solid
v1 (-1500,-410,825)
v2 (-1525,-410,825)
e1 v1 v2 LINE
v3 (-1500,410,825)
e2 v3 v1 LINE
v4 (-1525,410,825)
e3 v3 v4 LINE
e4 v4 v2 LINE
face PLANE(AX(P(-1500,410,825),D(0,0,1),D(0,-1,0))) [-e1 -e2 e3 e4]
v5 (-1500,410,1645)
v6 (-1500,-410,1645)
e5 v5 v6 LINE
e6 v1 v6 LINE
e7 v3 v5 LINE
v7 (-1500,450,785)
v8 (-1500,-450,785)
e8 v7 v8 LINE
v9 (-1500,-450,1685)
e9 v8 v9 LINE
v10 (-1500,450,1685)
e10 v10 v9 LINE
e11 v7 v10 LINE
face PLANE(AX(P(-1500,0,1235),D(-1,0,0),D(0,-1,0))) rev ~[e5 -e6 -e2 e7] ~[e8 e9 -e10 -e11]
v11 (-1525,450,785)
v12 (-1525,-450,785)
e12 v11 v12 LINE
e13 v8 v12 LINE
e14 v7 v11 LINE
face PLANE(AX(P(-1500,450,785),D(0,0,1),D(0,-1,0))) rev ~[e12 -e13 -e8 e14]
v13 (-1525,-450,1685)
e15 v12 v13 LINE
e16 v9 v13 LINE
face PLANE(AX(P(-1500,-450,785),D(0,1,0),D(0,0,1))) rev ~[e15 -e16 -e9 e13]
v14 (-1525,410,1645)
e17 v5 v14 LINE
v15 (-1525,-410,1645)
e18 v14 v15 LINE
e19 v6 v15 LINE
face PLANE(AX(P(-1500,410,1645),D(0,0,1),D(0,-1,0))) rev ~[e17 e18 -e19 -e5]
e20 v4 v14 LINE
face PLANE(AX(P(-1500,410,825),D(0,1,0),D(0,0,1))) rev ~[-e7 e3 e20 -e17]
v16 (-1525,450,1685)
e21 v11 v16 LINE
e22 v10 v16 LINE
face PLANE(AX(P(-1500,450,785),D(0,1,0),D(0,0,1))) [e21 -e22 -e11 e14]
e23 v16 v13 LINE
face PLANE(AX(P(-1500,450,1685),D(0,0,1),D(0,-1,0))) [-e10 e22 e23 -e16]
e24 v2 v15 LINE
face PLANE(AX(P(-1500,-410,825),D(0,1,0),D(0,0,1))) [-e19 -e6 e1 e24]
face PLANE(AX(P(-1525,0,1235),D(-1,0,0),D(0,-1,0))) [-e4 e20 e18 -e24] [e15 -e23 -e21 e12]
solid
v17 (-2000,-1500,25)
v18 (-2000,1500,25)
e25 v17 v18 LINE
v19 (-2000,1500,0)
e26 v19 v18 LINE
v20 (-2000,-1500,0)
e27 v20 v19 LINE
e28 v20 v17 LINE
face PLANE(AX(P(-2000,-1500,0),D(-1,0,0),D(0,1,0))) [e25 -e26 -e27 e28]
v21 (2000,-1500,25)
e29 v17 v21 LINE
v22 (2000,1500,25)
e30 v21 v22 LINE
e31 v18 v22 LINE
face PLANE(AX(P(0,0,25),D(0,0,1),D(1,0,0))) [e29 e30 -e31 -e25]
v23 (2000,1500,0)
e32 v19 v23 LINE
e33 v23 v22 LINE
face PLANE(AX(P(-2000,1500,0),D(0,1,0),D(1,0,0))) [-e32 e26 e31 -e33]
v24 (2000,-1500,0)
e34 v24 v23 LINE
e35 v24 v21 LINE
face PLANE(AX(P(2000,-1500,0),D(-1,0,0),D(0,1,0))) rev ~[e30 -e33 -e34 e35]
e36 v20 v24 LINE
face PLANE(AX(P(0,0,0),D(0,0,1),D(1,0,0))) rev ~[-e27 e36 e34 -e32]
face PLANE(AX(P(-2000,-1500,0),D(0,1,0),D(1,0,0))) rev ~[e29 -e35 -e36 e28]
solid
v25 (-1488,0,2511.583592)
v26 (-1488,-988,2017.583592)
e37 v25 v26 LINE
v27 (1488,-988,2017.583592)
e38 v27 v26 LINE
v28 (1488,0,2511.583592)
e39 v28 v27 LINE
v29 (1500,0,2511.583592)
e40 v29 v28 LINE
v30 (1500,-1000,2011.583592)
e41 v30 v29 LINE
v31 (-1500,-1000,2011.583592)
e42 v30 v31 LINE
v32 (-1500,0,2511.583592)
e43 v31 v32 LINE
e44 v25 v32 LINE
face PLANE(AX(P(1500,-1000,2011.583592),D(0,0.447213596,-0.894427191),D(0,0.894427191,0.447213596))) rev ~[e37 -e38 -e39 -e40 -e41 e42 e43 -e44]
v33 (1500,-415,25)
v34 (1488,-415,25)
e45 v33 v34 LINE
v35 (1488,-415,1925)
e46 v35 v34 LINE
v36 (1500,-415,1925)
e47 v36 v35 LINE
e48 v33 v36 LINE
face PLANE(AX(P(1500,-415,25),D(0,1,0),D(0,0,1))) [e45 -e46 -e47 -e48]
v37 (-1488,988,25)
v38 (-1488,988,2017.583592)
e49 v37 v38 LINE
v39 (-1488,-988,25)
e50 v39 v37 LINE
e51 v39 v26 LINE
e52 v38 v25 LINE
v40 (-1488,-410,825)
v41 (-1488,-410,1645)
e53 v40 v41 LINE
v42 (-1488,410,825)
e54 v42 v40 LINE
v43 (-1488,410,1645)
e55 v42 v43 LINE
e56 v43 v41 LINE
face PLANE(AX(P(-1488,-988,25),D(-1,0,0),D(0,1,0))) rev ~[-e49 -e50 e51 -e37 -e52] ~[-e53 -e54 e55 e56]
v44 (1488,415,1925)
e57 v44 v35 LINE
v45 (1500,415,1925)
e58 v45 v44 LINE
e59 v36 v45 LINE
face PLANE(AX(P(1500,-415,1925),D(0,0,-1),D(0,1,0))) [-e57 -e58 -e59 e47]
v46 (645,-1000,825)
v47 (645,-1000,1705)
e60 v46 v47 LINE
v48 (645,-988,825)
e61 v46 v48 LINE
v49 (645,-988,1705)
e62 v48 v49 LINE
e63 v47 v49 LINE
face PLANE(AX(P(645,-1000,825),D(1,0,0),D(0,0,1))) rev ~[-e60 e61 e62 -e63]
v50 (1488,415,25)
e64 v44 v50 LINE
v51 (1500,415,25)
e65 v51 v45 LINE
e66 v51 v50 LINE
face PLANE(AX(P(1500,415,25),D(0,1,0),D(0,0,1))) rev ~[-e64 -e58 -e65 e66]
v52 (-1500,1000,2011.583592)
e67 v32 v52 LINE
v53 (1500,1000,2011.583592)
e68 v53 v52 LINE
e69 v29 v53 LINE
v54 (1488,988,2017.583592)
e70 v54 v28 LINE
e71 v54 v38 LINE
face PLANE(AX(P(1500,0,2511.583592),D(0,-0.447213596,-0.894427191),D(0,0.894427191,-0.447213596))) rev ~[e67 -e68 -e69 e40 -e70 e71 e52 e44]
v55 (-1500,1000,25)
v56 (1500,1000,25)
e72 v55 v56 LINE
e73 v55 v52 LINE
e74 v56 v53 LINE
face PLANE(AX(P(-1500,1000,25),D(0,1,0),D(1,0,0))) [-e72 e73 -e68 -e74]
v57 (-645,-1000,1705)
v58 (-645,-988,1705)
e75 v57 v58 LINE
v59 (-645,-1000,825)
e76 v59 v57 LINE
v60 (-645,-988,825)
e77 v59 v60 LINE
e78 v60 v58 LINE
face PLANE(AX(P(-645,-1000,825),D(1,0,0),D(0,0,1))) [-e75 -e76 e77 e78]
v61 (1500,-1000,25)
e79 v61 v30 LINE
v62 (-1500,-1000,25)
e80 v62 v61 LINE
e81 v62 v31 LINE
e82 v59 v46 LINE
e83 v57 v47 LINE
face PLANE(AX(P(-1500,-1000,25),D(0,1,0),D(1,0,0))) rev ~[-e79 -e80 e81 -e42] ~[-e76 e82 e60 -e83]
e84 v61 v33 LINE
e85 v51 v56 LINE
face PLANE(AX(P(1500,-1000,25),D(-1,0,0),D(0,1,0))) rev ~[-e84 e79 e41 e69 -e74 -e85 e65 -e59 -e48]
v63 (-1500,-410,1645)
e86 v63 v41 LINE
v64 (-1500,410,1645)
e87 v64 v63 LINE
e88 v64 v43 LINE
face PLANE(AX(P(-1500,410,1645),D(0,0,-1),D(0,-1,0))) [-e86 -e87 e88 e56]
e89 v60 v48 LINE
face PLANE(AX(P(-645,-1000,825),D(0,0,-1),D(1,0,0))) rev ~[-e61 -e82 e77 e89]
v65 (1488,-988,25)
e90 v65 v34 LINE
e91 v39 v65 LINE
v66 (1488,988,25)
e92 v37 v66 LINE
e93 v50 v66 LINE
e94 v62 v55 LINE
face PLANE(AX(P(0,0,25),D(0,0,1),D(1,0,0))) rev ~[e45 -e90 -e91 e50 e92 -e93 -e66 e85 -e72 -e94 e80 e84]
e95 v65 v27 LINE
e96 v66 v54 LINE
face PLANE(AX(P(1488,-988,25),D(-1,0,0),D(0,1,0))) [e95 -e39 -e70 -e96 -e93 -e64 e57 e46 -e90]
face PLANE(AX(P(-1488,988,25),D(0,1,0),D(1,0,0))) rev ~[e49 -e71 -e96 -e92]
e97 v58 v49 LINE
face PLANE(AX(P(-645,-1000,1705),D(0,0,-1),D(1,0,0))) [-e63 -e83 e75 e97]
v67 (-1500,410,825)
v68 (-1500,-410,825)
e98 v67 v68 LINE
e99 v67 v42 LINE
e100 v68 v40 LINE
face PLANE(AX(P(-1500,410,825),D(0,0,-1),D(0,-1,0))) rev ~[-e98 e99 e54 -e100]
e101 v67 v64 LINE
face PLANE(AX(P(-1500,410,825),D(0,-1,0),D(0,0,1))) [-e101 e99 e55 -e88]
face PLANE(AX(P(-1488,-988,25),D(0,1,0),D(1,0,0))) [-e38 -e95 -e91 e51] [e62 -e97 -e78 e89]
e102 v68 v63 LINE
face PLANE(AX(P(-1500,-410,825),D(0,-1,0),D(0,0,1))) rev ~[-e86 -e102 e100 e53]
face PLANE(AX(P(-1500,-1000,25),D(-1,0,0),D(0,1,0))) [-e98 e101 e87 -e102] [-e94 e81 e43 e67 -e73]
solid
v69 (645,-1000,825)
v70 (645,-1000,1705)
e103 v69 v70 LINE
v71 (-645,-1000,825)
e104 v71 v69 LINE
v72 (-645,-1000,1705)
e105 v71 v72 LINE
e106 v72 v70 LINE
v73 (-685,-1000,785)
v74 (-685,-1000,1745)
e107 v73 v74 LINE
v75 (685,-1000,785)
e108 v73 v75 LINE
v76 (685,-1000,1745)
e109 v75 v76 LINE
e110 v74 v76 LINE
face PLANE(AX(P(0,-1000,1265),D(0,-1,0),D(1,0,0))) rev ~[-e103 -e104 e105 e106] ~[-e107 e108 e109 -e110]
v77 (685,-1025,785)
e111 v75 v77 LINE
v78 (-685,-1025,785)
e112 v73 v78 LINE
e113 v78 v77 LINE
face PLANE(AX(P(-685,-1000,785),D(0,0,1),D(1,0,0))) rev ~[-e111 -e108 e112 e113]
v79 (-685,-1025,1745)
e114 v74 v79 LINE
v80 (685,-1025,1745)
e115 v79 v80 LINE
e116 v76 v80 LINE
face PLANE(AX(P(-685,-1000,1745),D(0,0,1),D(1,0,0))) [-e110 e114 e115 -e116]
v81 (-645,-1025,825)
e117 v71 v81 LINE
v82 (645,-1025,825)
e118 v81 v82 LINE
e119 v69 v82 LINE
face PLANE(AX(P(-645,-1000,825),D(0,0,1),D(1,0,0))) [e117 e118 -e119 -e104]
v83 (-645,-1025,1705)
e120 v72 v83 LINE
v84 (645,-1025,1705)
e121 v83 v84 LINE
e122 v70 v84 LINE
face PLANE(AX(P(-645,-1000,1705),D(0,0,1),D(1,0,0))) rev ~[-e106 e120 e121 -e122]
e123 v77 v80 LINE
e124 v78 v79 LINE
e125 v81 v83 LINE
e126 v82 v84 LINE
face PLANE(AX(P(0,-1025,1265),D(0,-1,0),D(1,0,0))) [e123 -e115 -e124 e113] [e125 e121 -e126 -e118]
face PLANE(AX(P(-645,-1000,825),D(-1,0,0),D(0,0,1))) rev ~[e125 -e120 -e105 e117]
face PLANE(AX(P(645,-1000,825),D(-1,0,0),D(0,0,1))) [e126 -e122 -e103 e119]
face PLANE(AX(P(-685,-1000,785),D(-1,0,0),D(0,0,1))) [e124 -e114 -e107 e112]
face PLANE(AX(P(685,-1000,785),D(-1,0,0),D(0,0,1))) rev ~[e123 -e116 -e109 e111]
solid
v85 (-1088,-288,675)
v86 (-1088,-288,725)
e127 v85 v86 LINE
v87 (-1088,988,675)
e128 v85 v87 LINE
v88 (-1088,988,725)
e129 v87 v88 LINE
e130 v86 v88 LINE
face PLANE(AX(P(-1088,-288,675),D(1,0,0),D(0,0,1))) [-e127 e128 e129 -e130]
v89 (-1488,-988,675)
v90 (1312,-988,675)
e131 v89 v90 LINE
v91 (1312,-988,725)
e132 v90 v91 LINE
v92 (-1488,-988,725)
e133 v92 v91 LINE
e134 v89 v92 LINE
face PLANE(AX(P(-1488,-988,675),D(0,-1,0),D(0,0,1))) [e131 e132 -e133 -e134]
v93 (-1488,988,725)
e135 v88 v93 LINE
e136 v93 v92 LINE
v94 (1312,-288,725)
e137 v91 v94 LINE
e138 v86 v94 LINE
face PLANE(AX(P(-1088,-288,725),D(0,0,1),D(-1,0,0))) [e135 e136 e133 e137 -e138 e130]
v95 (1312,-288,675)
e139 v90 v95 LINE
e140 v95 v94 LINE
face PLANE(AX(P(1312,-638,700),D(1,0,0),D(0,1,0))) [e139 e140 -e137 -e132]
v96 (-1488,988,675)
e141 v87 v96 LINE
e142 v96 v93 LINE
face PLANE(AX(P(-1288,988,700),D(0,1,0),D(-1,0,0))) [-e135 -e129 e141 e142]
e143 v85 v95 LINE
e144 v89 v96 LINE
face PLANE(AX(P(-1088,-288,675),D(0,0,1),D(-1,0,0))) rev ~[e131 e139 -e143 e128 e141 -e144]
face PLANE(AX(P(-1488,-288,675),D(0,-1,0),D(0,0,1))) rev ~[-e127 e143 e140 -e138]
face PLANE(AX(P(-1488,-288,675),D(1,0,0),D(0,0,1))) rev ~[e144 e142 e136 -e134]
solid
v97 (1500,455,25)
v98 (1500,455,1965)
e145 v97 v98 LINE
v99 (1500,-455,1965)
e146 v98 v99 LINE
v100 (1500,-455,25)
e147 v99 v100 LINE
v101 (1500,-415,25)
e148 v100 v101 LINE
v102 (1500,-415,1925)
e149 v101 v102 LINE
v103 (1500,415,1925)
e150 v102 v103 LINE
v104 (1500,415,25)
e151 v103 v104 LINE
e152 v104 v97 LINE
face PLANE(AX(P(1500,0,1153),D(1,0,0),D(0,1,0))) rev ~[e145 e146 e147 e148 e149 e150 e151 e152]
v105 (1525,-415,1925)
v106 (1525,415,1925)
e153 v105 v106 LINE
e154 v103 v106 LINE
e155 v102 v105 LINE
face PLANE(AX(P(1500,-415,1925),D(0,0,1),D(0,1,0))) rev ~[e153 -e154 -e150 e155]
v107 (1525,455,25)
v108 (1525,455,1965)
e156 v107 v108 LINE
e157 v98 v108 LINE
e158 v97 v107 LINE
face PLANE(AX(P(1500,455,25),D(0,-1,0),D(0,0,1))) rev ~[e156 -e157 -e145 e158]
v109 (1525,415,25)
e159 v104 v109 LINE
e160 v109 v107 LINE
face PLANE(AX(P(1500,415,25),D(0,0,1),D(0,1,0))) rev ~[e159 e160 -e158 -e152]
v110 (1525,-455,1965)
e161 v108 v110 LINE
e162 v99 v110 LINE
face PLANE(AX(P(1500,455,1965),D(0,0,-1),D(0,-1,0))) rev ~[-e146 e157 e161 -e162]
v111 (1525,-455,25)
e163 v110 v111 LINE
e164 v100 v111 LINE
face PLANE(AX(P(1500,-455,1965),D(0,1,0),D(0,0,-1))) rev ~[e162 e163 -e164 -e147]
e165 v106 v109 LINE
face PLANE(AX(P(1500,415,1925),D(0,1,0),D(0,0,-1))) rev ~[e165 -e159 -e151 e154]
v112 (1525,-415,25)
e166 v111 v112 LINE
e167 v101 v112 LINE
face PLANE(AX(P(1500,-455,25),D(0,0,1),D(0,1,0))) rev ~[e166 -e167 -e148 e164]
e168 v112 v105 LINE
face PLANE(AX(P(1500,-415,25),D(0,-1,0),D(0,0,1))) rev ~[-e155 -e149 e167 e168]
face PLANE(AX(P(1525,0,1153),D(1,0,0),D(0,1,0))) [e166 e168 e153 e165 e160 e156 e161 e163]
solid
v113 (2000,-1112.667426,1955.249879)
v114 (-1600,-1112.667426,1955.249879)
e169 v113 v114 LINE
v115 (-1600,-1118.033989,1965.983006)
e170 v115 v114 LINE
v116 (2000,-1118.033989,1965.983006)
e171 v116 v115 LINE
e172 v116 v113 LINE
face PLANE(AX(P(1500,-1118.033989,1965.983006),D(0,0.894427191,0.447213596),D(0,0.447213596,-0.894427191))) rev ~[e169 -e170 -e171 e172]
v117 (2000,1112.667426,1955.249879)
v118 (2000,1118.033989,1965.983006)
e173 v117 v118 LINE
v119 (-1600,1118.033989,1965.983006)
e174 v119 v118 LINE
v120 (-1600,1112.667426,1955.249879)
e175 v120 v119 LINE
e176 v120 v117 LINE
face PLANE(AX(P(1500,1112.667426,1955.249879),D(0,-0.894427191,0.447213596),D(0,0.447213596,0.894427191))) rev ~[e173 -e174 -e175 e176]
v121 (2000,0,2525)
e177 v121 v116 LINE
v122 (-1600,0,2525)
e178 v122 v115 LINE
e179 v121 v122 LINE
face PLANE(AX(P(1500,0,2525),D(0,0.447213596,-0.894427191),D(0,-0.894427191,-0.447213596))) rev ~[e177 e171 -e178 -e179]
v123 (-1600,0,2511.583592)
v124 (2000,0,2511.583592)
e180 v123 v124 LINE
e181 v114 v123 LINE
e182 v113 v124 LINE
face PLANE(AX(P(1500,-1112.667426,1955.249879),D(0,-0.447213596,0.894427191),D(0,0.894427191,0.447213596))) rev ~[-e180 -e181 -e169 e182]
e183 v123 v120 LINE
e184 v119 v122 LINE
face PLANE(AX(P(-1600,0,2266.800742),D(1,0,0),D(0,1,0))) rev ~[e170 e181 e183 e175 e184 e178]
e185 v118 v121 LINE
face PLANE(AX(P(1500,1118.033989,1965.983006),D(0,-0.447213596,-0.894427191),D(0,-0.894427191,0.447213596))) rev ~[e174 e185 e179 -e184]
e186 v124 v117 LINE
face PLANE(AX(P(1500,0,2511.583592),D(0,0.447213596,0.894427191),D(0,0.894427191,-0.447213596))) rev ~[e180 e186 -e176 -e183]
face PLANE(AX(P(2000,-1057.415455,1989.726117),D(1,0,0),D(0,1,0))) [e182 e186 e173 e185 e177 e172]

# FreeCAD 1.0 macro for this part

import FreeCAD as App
import Part
import Sketcher
from FreeCAD import Vector

doc = App.newDocument("Part")
body = doc.addObject("PartDesign::Body", "Body")

# Sketch on XY plane
sketch1 = body.newObject("Sketcher::SketchObject", "Sketch")
sketch1.AttachmentSupport = (doc.getObject("XY_Plane"), [""])
sketch1.MapMode = "FlatFace"
sketch1.addGeometry(Part.LineSegment(Vector(-2000, 1500, 0), Vector(-2000, -1500, 0)), False)
sketch1.addGeometry(Part.LineSegment(Vector(-2000, -1500, 0), Vector(2000, -1500, 0)), False)
sketch1.addGeometry(Part.LineSegment(Vector(2000, -1500, 0), Vector(2000, 1500, 0)), False)
sketch1.addGeometry(Part.LineSegment(Vector(2000, 1500, 0), Vector(-2000, 1500, 0)), False)
sketch1.addConstraint(Sketcher.Constraint("Coincident", 0, 2, 1, 1))
sketch1.addConstraint(Sketcher.Constraint("Coincident", 1, 2, 2, 1))
sketch1.addConstraint(Sketcher.Constraint("Coincident", 2, 2, 3, 1))
sketch1.addConstraint(Sketcher.Constraint("Coincident", 3, 2, 0, 1))
sketch1.addConstraint(Sketcher.Constraint("Vertical", 0))
sketch1.addConstraint(Sketcher.Constraint("Horizontal", 1))
sketch1.addConstraint(Sketcher.Constraint("Vertical", 2))
sketch1.addConstraint(Sketcher.Constraint("Horizontal", 3))
sketch1.addConstraint(Sketcher.Constraint("Symmetric", 0, 2, 2, 2, -1, 1))
sketch1.addConstraint(Sketcher.Constraint("DistanceX", 1, 1, 1, 2, 4000.0))
sketch1.addConstraint(Sketcher.Constraint("DistanceY", 0, 2, 0, 1, 3000.0))
pad1 = body.newObject("PartDesign::Pad", "Pad")
pad1.Profile = sketch1
pad1.Length = 25
body2 = doc.addObject("PartDesign::Body", "Body001")

# Sketch on XY plane
sketch2 = body2.newObject("Sketcher::SketchObject", "Sketch001")
sketch2.AttachmentSupport = (doc.getObject("XY_Plane001"), [""])
sketch2.MapMode = "FlatFace"
sketch2.AttachmentOffset = App.Placement(Vector(0, 0, 25), App.Rotation())
sketch2.addGeometry(Part.LineSegment(Vector(-1500, 1000, 0), Vector(-1500, -1000, 0)), False)
sketch2.addGeometry(Part.LineSegment(Vector(-1500, -1000, 0), Vector(1500, -1000, 0)), False)
sketch2.addGeometry(Part.LineSegment(Vector(1500, -1000, 0), Vector(1500, 1000, 0)), False)
sketch2.addGeometry(Part.LineSegment(Vector(1500, 1000, 0), Vector(-1500, 1000, 0)), False)
sketch2.addGeometry(Part.LineSegment(Vector(1488, -988, 0), Vector(-1488, -988, 0)), False)
sketch2.addGeometry(Part.LineSegment(Vector(-1488, -988, 0), Vector(-1488, 988, 0)), False)
sketch2.addGeometry(Part.LineSegment(Vector(-1488, 988, 0), Vector(1488, 988, 0)), False)
sketch2.addGeometry(Part.LineSegment(Vector(1488, 988, 0), Vector(1488, -988, 0)), False)
sketch2.addConstraint(Sketcher.Constraint("Coincident", 0, 2, 1, 1))
sketch2.addConstraint(Sketcher.Constraint("Coincident", 1, 2, 2, 1))
sketch2.addConstraint(Sketcher.Constraint("Coincident", 2, 2, 3, 1))
sketch2.addConstraint(Sketcher.Constraint("Coincident", 3, 2, 0, 1))
sketch2.addConstraint(Sketcher.Constraint("Coincident", 4, 2, 5, 1))
sketch2.addConstraint(Sketcher.Constraint("Coincident", 5, 2, 6, 1))
sketch2.addConstraint(Sketcher.Constraint("Coincident", 6, 2, 7, 1))
sketch2.addConstraint(Sketcher.Constraint("Coincident", 7, 2, 4, 1))
sketch2.addConstraint(Sketcher.Constraint("Vertical", 0))
sketch2.addConstraint(Sketcher.Constraint("Horizontal", 1))
sketch2.addConstraint(Sketcher.Constraint("Vertical", 2))
sketch2.addConstraint(Sketcher.Constraint("Horizontal", 3))
sketch2.addConstraint(Sketcher.Constraint("Horizontal", 4))
sketch2.addConstraint(Sketcher.Constraint("Vertical", 5))
sketch2.addConstraint(Sketcher.Constraint("Horizontal", 6))
sketch2.addConstraint(Sketcher.Constraint("Vertical", 7))
sketch2.addConstraint(Sketcher.Constraint("Symmetric", 0, 2, 2, 2, -1, 1))
sketch2.addConstraint(Sketcher.Constraint("Symmetric", 4, 2, 6, 2, -1, 1))
sketch2.addConstraint(Sketcher.Constraint("DistanceX", 1, 1, 1, 2, 3000.0))
sketch2.addConstraint(Sketcher.Constraint("DistanceX", 4, 2, 4, 1, 2976.0))
sketch2.addConstraint(Sketcher.Constraint("DistanceY", 0, 2, 0, 1, 2000.0))
sketch2.addConstraint(Sketcher.Constraint("DistanceY", 5, 1, 5, 2, 1976.0))
pad2 = body2.newObject("PartDesign::Pad", "Pad001")
pad2.Profile = sketch2
pad2.Length = 2500

# Sketch on YZ plane
sketch3 = body2.newObject("Sketcher::SketchObject", "Sketch002")
sketch3.AttachmentSupport = (doc.getObject("YZ_Plane001"), [""])
sketch3.MapMode = "FlatFace"
sketch3.AttachmentOffset = App.Placement(Vector(0, 0, -1500), App.Rotation())
sketch3.addGeometry(Part.LineSegment(Vector(410, 1645, 0), Vector(410, 825, 0)), False)
sketch3.addGeometry(Part.LineSegment(Vector(410, 825, 0), Vector(-410, 825, 0)), False)
sketch3.addGeometry(Part.LineSegment(Vector(-410, 825, 0), Vector(-410, 1645, 0)), False)
sketch3.addGeometry(Part.LineSegment(Vector(-410, 1645, 0), Vector(410, 1645, 0)), False)
sketch3.addConstraint(Sketcher.Constraint("Coincident", 0, 2, 1, 1))
sketch3.addConstraint(Sketcher.Constraint("Coincident", 1, 2, 2, 1))
sketch3.addConstraint(Sketcher.Constraint("Coincident", 2, 2, 3, 1))
sketch3.addConstraint(Sketcher.Constraint("Coincident", 3, 2, 0, 1))
sketch3.addConstraint(Sketcher.Constraint("Vertical", 0))
sketch3.addConstraint(Sketcher.Constraint("Horizontal", 1))
sketch3.addConstraint(Sketcher.Constraint("Vertical", 2))
sketch3.addConstraint(Sketcher.Constraint("Horizontal", 3))
sketch3.addConstraint(Sketcher.Constraint("Equal", 3, 0))
sketch3.addConstraint(Sketcher.Constraint("DistanceX", 1, 2, 1, 1, 820.0))
sketch3.addConstraint(Sketcher.Constraint("DistanceX", -1, 1, 0, 2, 410.0))
sketch3.addConstraint(Sketcher.Constraint("DistanceY", -1, 1, 0, 2, 825.0))
pocket1 = body2.newObject("PartDesign::Pocket", "Pocket")
pocket1.Profile = sketch3
pocket1.Length = 12
pocket1.Reversed = True

# Sketch on XZ plane
sketch4 = body2.newObject("Sketcher::SketchObject", "Sketch003")
sketch4.AttachmentSupport = (doc.getObject("XZ_Plane001"), [""])
sketch4.MapMode = "FlatFace"
sketch4.AttachmentOffset = App.Placement(Vector(0, 0, 1000), App.Rotation())
sketch4.addGeometry(Part.LineSegment(Vector(-645, 1705, 0), Vector(-645, 825, 0)), False)
sketch4.addGeometry(Part.LineSegment(Vector(-645, 825, 0), Vector(645, 825, 0)), False)
sketch4.addGeometry(Part.LineSegment(Vector(645, 825, 0), Vector(645, 1705, 0)), False)
sketch4.addGeometry(Part.LineSegment(Vector(645, 1705, 0), Vector(-645, 1705, 0)), False)
sketch4.addConstraint(Sketcher.Constraint("Coincident", 0, 2, 1, 1))
sketch4.addConstraint(Sketcher.Constraint("Coincident", 1, 2, 2, 1))
sketch4.addConstraint(Sketcher.Constraint("Coincident", 2, 2, 3, 1))
sketch4.addConstraint(Sketcher.Constraint("Coincident", 3, 2, 0, 1))
sketch4.addConstraint(Sketcher.Constraint("Vertical", 0))
sketch4.addConstraint(Sketcher.Constraint("Horizontal", 1))
sketch4.addConstraint(Sketcher.Constraint("Vertical", 2))
sketch4.addConstraint(Sketcher.Constraint("Horizontal", 3))
sketch4.addConstraint(Sketcher.Constraint("DistanceX", 1, 1, 1, 2, 1290.0))
sketch4.addConstraint(Sketcher.Constraint("DistanceY", 0, 2, 0, 1, 880.0))
sketch4.addConstraint(Sketcher.Constraint("DistanceX", 0, 2, -1, 1, 645.0))
sketch4.addConstraint(Sketcher.Constraint("DistanceY", -1, 1, 0, 2, 825.0))
pocket2 = body2.newObject("PartDesign::Pocket", "Pocket001")
pocket2.Profile = sketch4
pocket2.Length = 12

# Sketch on YZ plane
sketch5 = body2.newObject("Sketcher::SketchObject", "Sketch004")
sketch5.AttachmentSupport = (doc.getObject("YZ_Plane001"), [""])
sketch5.MapMode = "FlatFace"
sketch5.AttachmentOffset = App.Placement(Vector(0, 0, 1500), App.Rotation())
sketch5.addGeometry(Part.LineSegment(Vector(-415, 1925, 0), Vector(-415, 25, 0)), False)
sketch5.addGeometry(Part.LineSegment(Vector(-415, 25, 0), Vector(415, 25, 0)), False)
sketch5.addGeometry(Part.LineSegment(Vector(415, 25, 0), Vector(415, 1925, 0)), False)
sketch5.addGeometry(Part.LineSegment(Vector(415, 1925, 0), Vector(-415, 1925, 0)), False)
sketch5.addConstraint(Sketcher.Constraint("Coincident", 0, 2, 1, 1))
sketch5.addConstraint(Sketcher.Constraint("Coincident", 1, 2, 2, 1))
sketch5.addConstraint(Sketcher.Constraint("Coincident", 2, 2, 3, 1))
sketch5.addConstraint(Sketcher.Constraint("Coincident", 3, 2, 0, 1))
sketch5.addConstraint(Sketcher.Constraint("Vertical", 0))
sketch5.addConstraint(Sketcher.Constraint("Horizontal", 1))
sketch5.addConstraint(Sketcher.Constraint("Vertical", 2))
sketch5.addConstraint(Sketcher.Constraint("Horizontal", 3))
sketch5.addConstraint(Sketcher.Constraint("DistanceX", 1, 1, 1, 2, 830.0))
sketch5.addConstraint(Sketcher.Constraint("DistanceY", 0, 2, 0, 1, 1900.0))
sketch5.addConstraint(Sketcher.Constraint("DistanceX", 0, 2, -1, 1, 415.0))
sketch5.addConstraint(Sketcher.Constraint("DistanceY", -1, 1, 0, 2, 25.0))
pocket3 = body2.newObject("PartDesign::Pocket", "Pocket002")
pocket3.Profile = sketch5
pocket3.Length = 25

# Sketch on YZ plane
sketch6 = body2.newObject("Sketcher::SketchObject", "Sketch005")
sketch6.AttachmentSupport = (doc.getObject("YZ_Plane001"), [""])
sketch6.MapMode = "FlatFace"
sketch6.AttachmentOffset = App.Placement(Vector(0, 0, 1500), App.Rotation())
sketch6.addGeometry(Part.LineSegment(Vector(-1000, 2525, 0), Vector(-1000, 2011.583592, 0)), False)
sketch6.addGeometry(Part.LineSegment(Vector(-1000, 2011.583592, 0), Vector(0, 2511.583592, 0)), False)
sketch6.addGeometry(Part.LineSegment(Vector(0, 2511.583592, 0), Vector(1000, 2011.583592, 0)), False)
sketch6.addGeometry(Part.LineSegment(Vector(1000, 2011.583592, 0), Vector(1000, 2525, 0)), False)
sketch6.addGeometry(Part.LineSegment(Vector(1000, 2525, 0), Vector(-1000, 2525, 0)), False)
sketch6.addConstraint(Sketcher.Constraint("Coincident", 0, 2, 1, 1))
sketch6.addConstraint(Sketcher.Constraint("Coincident", 1, 2, 2, 1))
sketch6.addConstraint(Sketcher.Constraint("Coincident", 2, 2, 3, 1))
sketch6.addConstraint(Sketcher.Constraint("Coincident", 3, 2, 4, 1))
sketch6.addConstraint(Sketcher.Constraint("Coincident", 4, 2, 0, 1))
sketch6.addConstraint(Sketcher.Constraint("Vertical", 0))
sketch6.addConstraint(Sketcher.Constraint("Vertical", 3))
sketch6.addConstraint(Sketcher.Constraint("Horizontal", 4))
sketch6.addConstraint(Sketcher.Constraint("Symmetric", 0, 2, 2, 2, -2))
sketch6.addConstraint(Sketcher.Constraint("PointOnObject", 1, 2, -2))
sketch6.addConstraint(Sketcher.Constraint("DistanceX", 4, 2, 4, 1, 2000.0))
sketch6.addConstraint(Sketcher.Constraint("DistanceY", -1, 1, 3, 2, 2525.0))
sketch6.addConstraint(Sketcher.Constraint("DistanceY", 0, 2, 1, 2, 500.0))
sketch6.addConstraint(Sketcher.Constraint("DistanceY", 0, 2, 0, 1, 513.416408))
pocket4 = body2.newObject("PartDesign::Pocket", "Pocket003")
pocket4.Profile = sketch6
pocket4.Type = "ThroughAll"
body3 = doc.addObject("PartDesign::Body", "Body002")

# Sketch on YZ plane
sketch7 = body3.newObject("Sketcher::SketchObject", "Sketch006")
sketch7.AttachmentSupport = (doc.getObject("YZ_Plane002"), [""])
sketch7.MapMode = "FlatFace"
sketch7.AttachmentOffset = App.Placement(Vector(0, 0, -1500), App.Rotation())
sketch7.addGeometry(Part.LineSegment(Vector(450, 1685, 0), Vector(450, 785, 0)), False)
sketch7.addGeometry(Part.LineSegment(Vector(450, 785, 0), Vector(-450, 785, 0)), False)
sketch7.addGeometry(Part.LineSegment(Vector(-450, 785, 0), Vector(-450, 1685, 0)), False)
sketch7.addGeometry(Part.LineSegment(Vector(-450, 1685, 0), Vector(450, 1685, 0)), False)
sketch7.addGeometry(Part.LineSegment(Vector(-410, 825, 0), Vector(410, 825, 0)), False)
sketch7.addGeometry(Part.LineSegment(Vector(410, 825, 0), Vector(410, 1645, 0)), False)
sketch7.addGeometry(Part.LineSegment(Vector(410, 1645, 0), Vector(-410, 1645, 0)), False)
sketch7.addGeometry(Part.LineSegment(Vector(-410, 1645, 0), Vector(-410, 825, 0)), False)
sketch7.addConstraint(Sketcher.Constraint("Coincident", 0, 2, 1, 1))
sketch7.addConstraint(Sketcher.Constraint("Coincident", 1, 2, 2, 1))
sketch7.addConstraint(Sketcher.Constraint("Coincident", 2, 2, 3, 1))
sketch7.addConstraint(Sketcher.Constraint("Coincident", 3, 2, 0, 1))
sketch7.addConstraint(Sketcher.Constraint("Coincident", 4, 2, 5, 1))
sketch7.addConstraint(Sketcher.Constraint("Coincident", 5, 2, 6, 1))
sketch7.addConstraint(Sketcher.Constraint("Coincident", 6, 2, 7, 1))
sketch7.addConstraint(Sketcher.Constraint("Coincident", 7, 2, 4, 1))
sketch7.addConstraint(Sketcher.Constraint("Vertical", 0))
sketch7.addConstraint(Sketcher.Constraint("Horizontal", 1))
sketch7.addConstraint(Sketcher.Constraint("Vertical", 2))
sketch7.addConstraint(Sketcher.Constraint("Horizontal", 3))
sketch7.addConstraint(Sketcher.Constraint("Horizontal", 4))
sketch7.addConstraint(Sketcher.Constraint("Vertical", 5))
sketch7.addConstraint(Sketcher.Constraint("Horizontal", 6))
sketch7.addConstraint(Sketcher.Constraint("Vertical", 7))
sketch7.addConstraint(Sketcher.Constraint("Equal", 3, 0))
sketch7.addConstraint(Sketcher.Constraint("Equal", 6, 5))
sketch7.addConstraint(Sketcher.Constraint("DistanceX", 1, 2, 1, 1, 900.0))
sketch7.addConstraint(Sketcher.Constraint("DistanceX", 4, 1, 4, 2, 820.0))
sketch7.addConstraint(Sketcher.Constraint("DistanceX", -1, 1, 0, 2, 450.0))
sketch7.addConstraint(Sketcher.Constraint("DistanceY", -1, 1, 0, 2, 785.0))
sketch7.addConstraint(Sketcher.Constraint("DistanceX", -1, 1, 4, 2, 410.0))
sketch7.addConstraint(Sketcher.Constraint("DistanceY", -1, 1, 4, 2, 825.0))
pad3 = body3.newObject("PartDesign::Pad", "Pad002")
pad3.Profile = sketch7
pad3.Length = 25
pad3.Reversed = True
body4 = doc.addObject("PartDesign::Body", "Body003")

# Sketch on XZ plane
sketch8 = body4.newObject("Sketcher::SketchObject", "Sketch007")
sketch8.AttachmentSupport = (doc.getObject("XZ_Plane003"), [""])
sketch8.MapMode = "FlatFace"
sketch8.AttachmentOffset = App.Placement(Vector(0, 0, 1000), App.Rotation())
sketch8.addGeometry(Part.LineSegment(Vector(-685, 1745, 0), Vector(-685, 785, 0)), False)
sketch8.addGeometry(Part.LineSegment(Vector(-685, 785, 0), Vector(685, 785, 0)), False)
sketch8.addGeometry(Part.LineSegment(Vector(685, 785, 0), Vector(685, 1745, 0)), False)
sketch8.addGeometry(Part.LineSegment(Vector(685, 1745, 0), Vector(-685, 1745, 0)), False)
sketch8.addGeometry(Part.LineSegment(Vector(645, 825, 0), Vector(-645, 825, 0)), False)
sketch8.addGeometry(Part.LineSegment(Vector(-645, 825, 0), Vector(-645, 1705, 0)), False)
sketch8.addGeometry(Part.LineSegment(Vector(-645, 1705, 0), Vector(645, 1705, 0)), False)
sketch8.addGeometry(Part.LineSegment(Vector(645, 1705, 0), Vector(645, 825, 0)), False)
sketch8.addConstraint(Sketcher.Constraint("Coincident", 0, 2, 1, 1))
sketch8.addConstraint(Sketcher.Constraint("Coincident", 1, 2, 2, 1))
sketch8.addConstraint(Sketcher.Constraint("Coincident", 2, 2, 3, 1))
sketch8.addConstraint(Sketcher.Constraint("Coincident", 3, 2, 0, 1))
sketch8.addConstraint(Sketcher.Constraint("Coincident", 4, 2, 5, 1))
sketch8.addConstraint(Sketcher.Constraint("Coincident", 5, 2, 6, 1))
sketch8.addConstraint(Sketcher.Constraint("Coincident", 6, 2, 7, 1))
sketch8.addConstraint(Sketcher.Constraint("Coincident", 7, 2, 4, 1))
sketch8.addConstraint(Sketcher.Constraint("Vertical", 0))
sketch8.addConstraint(Sketcher.Constraint("Horizontal", 1))
sketch8.addConstraint(Sketcher.Constraint("Vertical", 2))
sketch8.addConstraint(Sketcher.Constraint("Horizontal", 3))
sketch8.addConstraint(Sketcher.Constraint("Horizontal", 4))
sketch8.addConstraint(Sketcher.Constraint("Vertical", 5))
sketch8.addConstraint(Sketcher.Constraint("Horizontal", 6))
sketch8.addConstraint(Sketcher.Constraint("Vertical", 7))
sketch8.addConstraint(Sketcher.Constraint("DistanceX", 1, 1, 1, 2, 1370.0))
sketch8.addConstraint(Sketcher.Constraint("DistanceX", 4, 2, 4, 1, 1290.0))
sketch8.addConstraint(Sketcher.Constraint("DistanceY", 0, 2, 0, 1, 960.0))
sketch8.addConstraint(Sketcher.Constraint("DistanceY", 5, 1, 5, 2, 880.0))
sketch8.addConstraint(Sketcher.Constraint("DistanceX", 0, 2, -1, 1, 685.0))
sketch8.addConstraint(Sketcher.Constraint("DistanceY", -1, 1, 0, 2, 785.0))
sketch8.addConstraint(Sketcher.Constraint("DistanceX", 4, 2, -1, 1, 645.0))
sketch8.addConstraint(Sketcher.Constraint("DistanceY", -1, 1, 4, 2, 825.0))
pad4 = body4.newObject("PartDesign::Pad", "Pad003")
pad4.Profile = sketch8
pad4.Length = 25
body5 = doc.addObject("PartDesign::Body", "Body004")

# Sketch on YZ plane
sketch9 = body5.newObject("Sketcher::SketchObject", "Sketch008")
sketch9.AttachmentSupport = (doc.getObject("YZ_Plane004"), [""])
sketch9.MapMode = "FlatFace"
sketch9.AttachmentOffset = App.Placement(Vector(0, 0, 1500), App.Rotation())
sketch9.addGeometry(Part.LineSegment(Vector(-455, 25, 0), Vector(-415, 25, 0)), False)
sketch9.addGeometry(Part.LineSegment(Vector(-415, 25, 0), Vector(-415, 1925, 0)), False)
sketch9.addGeometry(Part.LineSegment(Vector(-415, 1925, 0), Vector(415, 1925, 0)), False)
sketch9.addGeometry(Part.LineSegment(Vector(415, 1925, 0), Vector(415, 25, 0)), False)
sketch9.addGeometry(Part.LineSegment(Vector(415, 25, 0), Vector(455, 25, 0)), False)
sketch9.addGeometry(Part.LineSegment(Vector(455, 25, 0), Vector(455, 1965, 0)), False)
sketch9.addGeometry(Part.LineSegment(Vector(455, 1965, 0), Vector(-455, 1965, 0)), False)
sketch9.addGeometry(Part.LineSegment(Vector(-455, 1965, 0), Vector(-455, 25, 0)), False)
sketch9.addConstraint(Sketcher.Constraint("Coincident", 0, 2, 1, 1))
sketch9.addConstraint(Sketcher.Constraint("Coincident", 1, 2, 2, 1))
sketch9.addConstraint(Sketcher.Constraint("Coincident", 2, 2, 3, 1))
sketch9.addConstraint(Sketcher.Constraint("Coincident", 3, 2, 4, 1))
sketch9.addConstraint(Sketcher.Constraint("Coincident", 4, 2, 5, 1))
sketch9.addConstraint(Sketcher.Constraint("Coincident", 5, 2, 6, 1))
sketch9.addConstraint(Sketcher.Constraint("Coincident", 6, 2, 7, 1))
sketch9.addConstraint(Sketcher.Constraint("Coincident", 7, 2, 0, 1))
sketch9.addConstraint(Sketcher.Constraint("Horizontal", 0))
sketch9.addConstraint(Sketcher.Constraint("Vertical", 1))
sketch9.addConstraint(Sketcher.Constraint("Horizontal", 2))
sketch9.addConstraint(Sketcher.Constraint("Vertical", 3))
sketch9.addConstraint(Sketcher.Constraint("Horizontal", 4))
sketch9.addConstraint(Sketcher.Constraint("Vertical", 5))
sketch9.addConstraint(Sketcher.Constraint("Horizontal", 6))
sketch9.addConstraint(Sketcher.Constraint("Vertical", 7))
sketch9.addConstraint(Sketcher.Constraint("Symmetric", 0, 2, 3, 2, -2))
sketch9.addConstraint(Sketcher.Constraint("Equal", 0, 4))
sketch9.addConstraint(Sketcher.Constraint("DistanceX", 0, 1, 0, 2, 40.0))
sketch9.addConstraint(Sketcher.Constraint("DistanceX", 2, 1, 2, 2, 830.0))
sketch9.addConstraint(Sketcher.Constraint("DistanceY", 1, 1, 1, 2, 1900.0))
sketch9.addConstraint(Sketcher.Constraint("DistanceY", 5, 1, 5, 2, 1940.0))
sketch9.addConstraint(Sketcher.Constraint("DistanceY", -1, 1, 0, 2, 25.0))
pad5 = body5.newObject("PartDesign::Pad", "Pad004")
pad5.Profile = sketch9
pad5.Length = 25
body6 = doc.addObject("PartDesign::Body", "Body005")

# Sketch on YZ plane
sketch10 = body6.newObject("Sketcher::SketchObject", "Sketch009")
sketch10.AttachmentSupport = (doc.getObject("YZ_Plane005"), [""])
sketch10.MapMode = "FlatFace"
sketch10.AttachmentOffset = App.Placement(Vector(0, 0, 1500), App.Rotation())
sketch10.addGeometry(Part.LineSegment(Vector(0, 2511.583592, 0), Vector(1112.667426, 1955.249879, 0)), False)
sketch10.addGeometry(Part.LineSegment(Vector(1112.667426, 1955.249879, 0), Vector(1118.033989, 1965.983006, 0)), False)
sketch10.addGeometry(Part.LineSegment(Vector(1118.033989, 1965.983006, 0), Vector(0, 2525, 0)), False)
sketch10.addGeometry(Part.LineSegment(Vector(0, 2525, 0), Vector(-1118.033989, 1965.983006, 0)), False)
sketch10.addGeometry(Part.LineSegment(Vector(-1118.033989, 1965.983006, 0), Vector(-1112.667426, 1955.249879, 0)), False)
sketch10.addGeometry(Part.LineSegment(Vector(-1112.667426, 1955.249879, 0), Vector(0, 2511.583592, 0)), False)
sketch10.addConstraint(Sketcher.Constraint("Coincident", 0, 2, 1, 1))
sketch10.addConstraint(Sketcher.Constraint("Coincident", 1, 2, 2, 1))
sketch10.addConstraint(Sketcher.Constraint("Coincident", 2, 2, 3, 1))
sketch10.addConstraint(Sketcher.Constraint("Coincident", 3, 2, 4, 1))
sketch10.addConstraint(Sketcher.Constraint("Coincident", 4, 2, 5, 1))
sketch10.addConstraint(Sketcher.Constraint("Coincident", 5, 2, 0, 1))
sketch10.addConstraint(Sketcher.Constraint("Symmetric", 1, 2, 3, 2, -2))
sketch10.addConstraint(Sketcher.Constraint("Symmetric", 0, 2, 4, 2, -2))
sketch10.addConstraint(Sketcher.Constraint("PointOnObject", 2, 2, -2))
sketch10.addConstraint(Sketcher.Constraint("PointOnObject", 5, 2, -2))
sketch10.addConstraint(Sketcher.Constraint("Perpendicular", 0, 1))
sketch10.addConstraint(Sketcher.Constraint("Perpendicular", 1, 2))
sketch10.addConstraint(Sketcher.Constraint("Distance", 0, 1244.0))
sketch10.addConstraint(Sketcher.Constraint("Distance", 1, 12.0))
sketch10.addConstraint(Sketcher.Constraint("Distance", 2, 1250.0))
sketch10.addConstraint(Sketcher.Constraint("DistanceY", -1, 1, 2, 2, 2525.0))
pad6 = body6.newObject("PartDesign::Pad", "Pad005")
pad6.Profile = sketch10
pad6.Length = 3100
pad6.Reversed = True

# Sketch on YZ plane
sketch11 = body6.newObject("Sketcher::SketchObject", "Sketch010")
sketch11.AttachmentSupport = (doc.getObject("YZ_Plane005"), [""])
sketch11.MapMode = "FlatFace"
sketch11.AttachmentOffset = App.Placement(Vector(0, 0, 1500), App.Rotation())
sketch11.addGeometry(Part.LineSegment(Vector(-1112.667426, 1955.249879, 0), Vector(0, 2511.583592, 0)), False)
sketch11.addGeometry(Part.LineSegment(Vector(0, 2511.583592, 0), Vector(1112.667426, 1955.249879, 0)), False)
sketch11.addGeometry(Part.LineSegment(Vector(1112.667426, 1955.249879, 0), Vector(1118.033989, 1965.983006, 0)), False)
sketch11.addGeometry(Part.LineSegment(Vector(1118.033989, 1965.983006, 0), Vector(0, 2525, 0)), False)
sketch11.addGeometry(Part.LineSegment(Vector(0, 2525, 0), Vector(-1118.033989, 1965.983006, 0)), False)
sketch11.addGeometry(Part.LineSegment(Vector(-1118.033989, 1965.983006, 0), Vector(-1112.667426, 1955.249879, 0)), False)
sketch11.addConstraint(Sketcher.Constraint("Coincident", 0, 2, 1, 1))
sketch11.addConstraint(Sketcher.Constraint("Coincident", 1, 2, 2, 1))
sketch11.addConstraint(Sketcher.Constraint("Coincident", 2, 2, 3, 1))
sketch11.addConstraint(Sketcher.Constraint("Coincident", 3, 2, 4, 1))
sketch11.addConstraint(Sketcher.Constraint("Coincident", 4, 2, 5, 1))
sketch11.addConstraint(Sketcher.Constraint("Coincident", 5, 2, 0, 1))
sketch11.addConstraint(Sketcher.Constraint("Symmetric", 2, 2, 4, 2, -2))
sketch11.addConstraint(Sketcher.Constraint("Symmetric", 1, 2, 5, 2, -2))
sketch11.addConstraint(Sketcher.Constraint("PointOnObject", 0, 2, -2))
sketch11.addConstraint(Sketcher.Constraint("PointOnObject", 3, 2, -2))
sketch11.addConstraint(Sketcher.Constraint("Perpendicular", 1, 2))
sketch11.addConstraint(Sketcher.Constraint("Perpendicular", 2, 3))
sketch11.addConstraint(Sketcher.Constraint("Distance", 0, 1244.0))
sketch11.addConstraint(Sketcher.Constraint("Distance", 2, 12.0))
sketch11.addConstraint(Sketcher.Constraint("Distance", 3, 1250.0))
sketch11.addConstraint(Sketcher.Constraint("DistanceY", -1, 1, 3, 2, 2525.0))
pad7 = body6.newObject("PartDesign::Pad", "Pad006")
pad7.Profile = sketch11
pad7.Length = 500
body7 = doc.addObject("PartDesign::Body", "Body006")

# Sketch on YZ plane
sketch12 = body7.newObject("Sketcher::SketchObject", "Sketch011")
sketch12.AttachmentSupport = (doc.getObject("YZ_Plane006"), [""])
sketch12.MapMode = "FlatFace"
sketch12.AttachmentOffset = App.Placement(Vector(0, 0, -1488), App.Rotation())
sketch12.addGeometry(Part.LineSegment(Vector(-988, 725, 0), Vector(-988, 675, 0)), False)
sketch12.addGeometry(Part.LineSegment(Vector(-988, 675, 0), Vector(-288, 675, 0)), False)
sketch12.addGeometry(Part.LineSegment(Vector(-288, 675, 0), Vector(-288, 725, 0)), False)
sketch12.addGeometry(Part.LineSegment(Vector(-288, 725, 0), Vector(-988, 725, 0)), False)
sketch12.addConstraint(Sketcher.Constraint("Coincident", 0, 2, 1, 1))
sketch12.addConstraint(Sketcher.Constraint("Coincident", 1, 2, 2, 1))
sketch12.addConstraint(Sketcher.Constraint("Coincident", 2, 2, 3, 1))
sketch12.addConstraint(Sketcher.Constraint("Coincident", 3, 2, 0, 1))
sketch12.addConstraint(Sketcher.Constraint("Vertical", 0))
sketch12.addConstraint(Sketcher.Constraint("Horizontal", 1))
sketch12.addConstraint(Sketcher.Constraint("Vertical", 2))
sketch12.addConstraint(Sketcher.Constraint("Horizontal", 3))
sketch12.addConstraint(Sketcher.Constraint("DistanceX", 1, 1, 1, 2, 700.0))
sketch12.addConstraint(Sketcher.Constraint("DistanceY", 0, 2, 0, 1, 50.0))
sketch12.addConstraint(Sketcher.Constraint("DistanceX", 0, 2, -1, 1, 988.0))
sketch12.addConstraint(Sketcher.Constraint("DistanceY", -1, 1, 0, 2, 675.0))
pad8 = body7.newObject("PartDesign::Pad", "Pad007")
pad8.Profile = sketch12
pad8.Length = 2800

# Sketch on XZ plane
sketch13 = body7.newObject("Sketcher::SketchObject", "Sketch012")
sketch13.AttachmentSupport = (doc.getObject("XZ_Plane006"), [""])
sketch13.MapMode = "FlatFace"
sketch13.AttachmentOffset = App.Placement(Vector(0, 0, 288), App.Rotation())
sketch13.addGeometry(Part.LineSegment(Vector(-1088, 725, 0), Vector(-1088, 675, 0)), False)
sketch13.addGeometry(Part.LineSegment(Vector(-1088, 675, 0), Vector(-1488, 675, 0)), False)
sketch13.addGeometry(Part.LineSegment(Vector(-1488, 675, 0), Vector(-1488, 725, 0)), False)
sketch13.addGeometry(Part.LineSegment(Vector(-1488, 725, 0), Vector(-1088, 725, 0)), False)
sketch13.addConstraint(Sketcher.Constraint("Coincident", 0, 2, 1, 1))
sketch13.addConstraint(Sketcher.Constraint("Coincident", 1, 2, 2, 1))
sketch13.addConstraint(Sketcher.Constraint("Coincident", 2, 2, 3, 1))
sketch13.addConstraint(Sketcher.Constraint("Coincident", 3, 2, 0, 1))
sketch13.addConstraint(Sketcher.Constraint("Vertical", 0))
sketch13.addConstraint(Sketcher.Constraint("Horizontal", 1))
sketch13.addConstraint(Sketcher.Constraint("Vertical", 2))
sketch13.addConstraint(Sketcher.Constraint("Horizontal", 3))
sketch13.addConstraint(Sketcher.Constraint("DistanceX", 1, 2, 1, 1, 400.0))
sketch13.addConstraint(Sketcher.Constraint("DistanceY", 0, 2, 0, 1, 50.0))
sketch13.addConstraint(Sketcher.Constraint("DistanceX", 0, 2, -1, 1, 1088.0))
sketch13.addConstraint(Sketcher.Constraint("DistanceY", -1, 1, 0, 2, 675.0))
pad9 = body7.newObject("PartDesign::Pad", "Pad008")
pad9.Profile = sketch13
pad9.Length = 1276
pad9.Reversed = True

doc.recompute()
